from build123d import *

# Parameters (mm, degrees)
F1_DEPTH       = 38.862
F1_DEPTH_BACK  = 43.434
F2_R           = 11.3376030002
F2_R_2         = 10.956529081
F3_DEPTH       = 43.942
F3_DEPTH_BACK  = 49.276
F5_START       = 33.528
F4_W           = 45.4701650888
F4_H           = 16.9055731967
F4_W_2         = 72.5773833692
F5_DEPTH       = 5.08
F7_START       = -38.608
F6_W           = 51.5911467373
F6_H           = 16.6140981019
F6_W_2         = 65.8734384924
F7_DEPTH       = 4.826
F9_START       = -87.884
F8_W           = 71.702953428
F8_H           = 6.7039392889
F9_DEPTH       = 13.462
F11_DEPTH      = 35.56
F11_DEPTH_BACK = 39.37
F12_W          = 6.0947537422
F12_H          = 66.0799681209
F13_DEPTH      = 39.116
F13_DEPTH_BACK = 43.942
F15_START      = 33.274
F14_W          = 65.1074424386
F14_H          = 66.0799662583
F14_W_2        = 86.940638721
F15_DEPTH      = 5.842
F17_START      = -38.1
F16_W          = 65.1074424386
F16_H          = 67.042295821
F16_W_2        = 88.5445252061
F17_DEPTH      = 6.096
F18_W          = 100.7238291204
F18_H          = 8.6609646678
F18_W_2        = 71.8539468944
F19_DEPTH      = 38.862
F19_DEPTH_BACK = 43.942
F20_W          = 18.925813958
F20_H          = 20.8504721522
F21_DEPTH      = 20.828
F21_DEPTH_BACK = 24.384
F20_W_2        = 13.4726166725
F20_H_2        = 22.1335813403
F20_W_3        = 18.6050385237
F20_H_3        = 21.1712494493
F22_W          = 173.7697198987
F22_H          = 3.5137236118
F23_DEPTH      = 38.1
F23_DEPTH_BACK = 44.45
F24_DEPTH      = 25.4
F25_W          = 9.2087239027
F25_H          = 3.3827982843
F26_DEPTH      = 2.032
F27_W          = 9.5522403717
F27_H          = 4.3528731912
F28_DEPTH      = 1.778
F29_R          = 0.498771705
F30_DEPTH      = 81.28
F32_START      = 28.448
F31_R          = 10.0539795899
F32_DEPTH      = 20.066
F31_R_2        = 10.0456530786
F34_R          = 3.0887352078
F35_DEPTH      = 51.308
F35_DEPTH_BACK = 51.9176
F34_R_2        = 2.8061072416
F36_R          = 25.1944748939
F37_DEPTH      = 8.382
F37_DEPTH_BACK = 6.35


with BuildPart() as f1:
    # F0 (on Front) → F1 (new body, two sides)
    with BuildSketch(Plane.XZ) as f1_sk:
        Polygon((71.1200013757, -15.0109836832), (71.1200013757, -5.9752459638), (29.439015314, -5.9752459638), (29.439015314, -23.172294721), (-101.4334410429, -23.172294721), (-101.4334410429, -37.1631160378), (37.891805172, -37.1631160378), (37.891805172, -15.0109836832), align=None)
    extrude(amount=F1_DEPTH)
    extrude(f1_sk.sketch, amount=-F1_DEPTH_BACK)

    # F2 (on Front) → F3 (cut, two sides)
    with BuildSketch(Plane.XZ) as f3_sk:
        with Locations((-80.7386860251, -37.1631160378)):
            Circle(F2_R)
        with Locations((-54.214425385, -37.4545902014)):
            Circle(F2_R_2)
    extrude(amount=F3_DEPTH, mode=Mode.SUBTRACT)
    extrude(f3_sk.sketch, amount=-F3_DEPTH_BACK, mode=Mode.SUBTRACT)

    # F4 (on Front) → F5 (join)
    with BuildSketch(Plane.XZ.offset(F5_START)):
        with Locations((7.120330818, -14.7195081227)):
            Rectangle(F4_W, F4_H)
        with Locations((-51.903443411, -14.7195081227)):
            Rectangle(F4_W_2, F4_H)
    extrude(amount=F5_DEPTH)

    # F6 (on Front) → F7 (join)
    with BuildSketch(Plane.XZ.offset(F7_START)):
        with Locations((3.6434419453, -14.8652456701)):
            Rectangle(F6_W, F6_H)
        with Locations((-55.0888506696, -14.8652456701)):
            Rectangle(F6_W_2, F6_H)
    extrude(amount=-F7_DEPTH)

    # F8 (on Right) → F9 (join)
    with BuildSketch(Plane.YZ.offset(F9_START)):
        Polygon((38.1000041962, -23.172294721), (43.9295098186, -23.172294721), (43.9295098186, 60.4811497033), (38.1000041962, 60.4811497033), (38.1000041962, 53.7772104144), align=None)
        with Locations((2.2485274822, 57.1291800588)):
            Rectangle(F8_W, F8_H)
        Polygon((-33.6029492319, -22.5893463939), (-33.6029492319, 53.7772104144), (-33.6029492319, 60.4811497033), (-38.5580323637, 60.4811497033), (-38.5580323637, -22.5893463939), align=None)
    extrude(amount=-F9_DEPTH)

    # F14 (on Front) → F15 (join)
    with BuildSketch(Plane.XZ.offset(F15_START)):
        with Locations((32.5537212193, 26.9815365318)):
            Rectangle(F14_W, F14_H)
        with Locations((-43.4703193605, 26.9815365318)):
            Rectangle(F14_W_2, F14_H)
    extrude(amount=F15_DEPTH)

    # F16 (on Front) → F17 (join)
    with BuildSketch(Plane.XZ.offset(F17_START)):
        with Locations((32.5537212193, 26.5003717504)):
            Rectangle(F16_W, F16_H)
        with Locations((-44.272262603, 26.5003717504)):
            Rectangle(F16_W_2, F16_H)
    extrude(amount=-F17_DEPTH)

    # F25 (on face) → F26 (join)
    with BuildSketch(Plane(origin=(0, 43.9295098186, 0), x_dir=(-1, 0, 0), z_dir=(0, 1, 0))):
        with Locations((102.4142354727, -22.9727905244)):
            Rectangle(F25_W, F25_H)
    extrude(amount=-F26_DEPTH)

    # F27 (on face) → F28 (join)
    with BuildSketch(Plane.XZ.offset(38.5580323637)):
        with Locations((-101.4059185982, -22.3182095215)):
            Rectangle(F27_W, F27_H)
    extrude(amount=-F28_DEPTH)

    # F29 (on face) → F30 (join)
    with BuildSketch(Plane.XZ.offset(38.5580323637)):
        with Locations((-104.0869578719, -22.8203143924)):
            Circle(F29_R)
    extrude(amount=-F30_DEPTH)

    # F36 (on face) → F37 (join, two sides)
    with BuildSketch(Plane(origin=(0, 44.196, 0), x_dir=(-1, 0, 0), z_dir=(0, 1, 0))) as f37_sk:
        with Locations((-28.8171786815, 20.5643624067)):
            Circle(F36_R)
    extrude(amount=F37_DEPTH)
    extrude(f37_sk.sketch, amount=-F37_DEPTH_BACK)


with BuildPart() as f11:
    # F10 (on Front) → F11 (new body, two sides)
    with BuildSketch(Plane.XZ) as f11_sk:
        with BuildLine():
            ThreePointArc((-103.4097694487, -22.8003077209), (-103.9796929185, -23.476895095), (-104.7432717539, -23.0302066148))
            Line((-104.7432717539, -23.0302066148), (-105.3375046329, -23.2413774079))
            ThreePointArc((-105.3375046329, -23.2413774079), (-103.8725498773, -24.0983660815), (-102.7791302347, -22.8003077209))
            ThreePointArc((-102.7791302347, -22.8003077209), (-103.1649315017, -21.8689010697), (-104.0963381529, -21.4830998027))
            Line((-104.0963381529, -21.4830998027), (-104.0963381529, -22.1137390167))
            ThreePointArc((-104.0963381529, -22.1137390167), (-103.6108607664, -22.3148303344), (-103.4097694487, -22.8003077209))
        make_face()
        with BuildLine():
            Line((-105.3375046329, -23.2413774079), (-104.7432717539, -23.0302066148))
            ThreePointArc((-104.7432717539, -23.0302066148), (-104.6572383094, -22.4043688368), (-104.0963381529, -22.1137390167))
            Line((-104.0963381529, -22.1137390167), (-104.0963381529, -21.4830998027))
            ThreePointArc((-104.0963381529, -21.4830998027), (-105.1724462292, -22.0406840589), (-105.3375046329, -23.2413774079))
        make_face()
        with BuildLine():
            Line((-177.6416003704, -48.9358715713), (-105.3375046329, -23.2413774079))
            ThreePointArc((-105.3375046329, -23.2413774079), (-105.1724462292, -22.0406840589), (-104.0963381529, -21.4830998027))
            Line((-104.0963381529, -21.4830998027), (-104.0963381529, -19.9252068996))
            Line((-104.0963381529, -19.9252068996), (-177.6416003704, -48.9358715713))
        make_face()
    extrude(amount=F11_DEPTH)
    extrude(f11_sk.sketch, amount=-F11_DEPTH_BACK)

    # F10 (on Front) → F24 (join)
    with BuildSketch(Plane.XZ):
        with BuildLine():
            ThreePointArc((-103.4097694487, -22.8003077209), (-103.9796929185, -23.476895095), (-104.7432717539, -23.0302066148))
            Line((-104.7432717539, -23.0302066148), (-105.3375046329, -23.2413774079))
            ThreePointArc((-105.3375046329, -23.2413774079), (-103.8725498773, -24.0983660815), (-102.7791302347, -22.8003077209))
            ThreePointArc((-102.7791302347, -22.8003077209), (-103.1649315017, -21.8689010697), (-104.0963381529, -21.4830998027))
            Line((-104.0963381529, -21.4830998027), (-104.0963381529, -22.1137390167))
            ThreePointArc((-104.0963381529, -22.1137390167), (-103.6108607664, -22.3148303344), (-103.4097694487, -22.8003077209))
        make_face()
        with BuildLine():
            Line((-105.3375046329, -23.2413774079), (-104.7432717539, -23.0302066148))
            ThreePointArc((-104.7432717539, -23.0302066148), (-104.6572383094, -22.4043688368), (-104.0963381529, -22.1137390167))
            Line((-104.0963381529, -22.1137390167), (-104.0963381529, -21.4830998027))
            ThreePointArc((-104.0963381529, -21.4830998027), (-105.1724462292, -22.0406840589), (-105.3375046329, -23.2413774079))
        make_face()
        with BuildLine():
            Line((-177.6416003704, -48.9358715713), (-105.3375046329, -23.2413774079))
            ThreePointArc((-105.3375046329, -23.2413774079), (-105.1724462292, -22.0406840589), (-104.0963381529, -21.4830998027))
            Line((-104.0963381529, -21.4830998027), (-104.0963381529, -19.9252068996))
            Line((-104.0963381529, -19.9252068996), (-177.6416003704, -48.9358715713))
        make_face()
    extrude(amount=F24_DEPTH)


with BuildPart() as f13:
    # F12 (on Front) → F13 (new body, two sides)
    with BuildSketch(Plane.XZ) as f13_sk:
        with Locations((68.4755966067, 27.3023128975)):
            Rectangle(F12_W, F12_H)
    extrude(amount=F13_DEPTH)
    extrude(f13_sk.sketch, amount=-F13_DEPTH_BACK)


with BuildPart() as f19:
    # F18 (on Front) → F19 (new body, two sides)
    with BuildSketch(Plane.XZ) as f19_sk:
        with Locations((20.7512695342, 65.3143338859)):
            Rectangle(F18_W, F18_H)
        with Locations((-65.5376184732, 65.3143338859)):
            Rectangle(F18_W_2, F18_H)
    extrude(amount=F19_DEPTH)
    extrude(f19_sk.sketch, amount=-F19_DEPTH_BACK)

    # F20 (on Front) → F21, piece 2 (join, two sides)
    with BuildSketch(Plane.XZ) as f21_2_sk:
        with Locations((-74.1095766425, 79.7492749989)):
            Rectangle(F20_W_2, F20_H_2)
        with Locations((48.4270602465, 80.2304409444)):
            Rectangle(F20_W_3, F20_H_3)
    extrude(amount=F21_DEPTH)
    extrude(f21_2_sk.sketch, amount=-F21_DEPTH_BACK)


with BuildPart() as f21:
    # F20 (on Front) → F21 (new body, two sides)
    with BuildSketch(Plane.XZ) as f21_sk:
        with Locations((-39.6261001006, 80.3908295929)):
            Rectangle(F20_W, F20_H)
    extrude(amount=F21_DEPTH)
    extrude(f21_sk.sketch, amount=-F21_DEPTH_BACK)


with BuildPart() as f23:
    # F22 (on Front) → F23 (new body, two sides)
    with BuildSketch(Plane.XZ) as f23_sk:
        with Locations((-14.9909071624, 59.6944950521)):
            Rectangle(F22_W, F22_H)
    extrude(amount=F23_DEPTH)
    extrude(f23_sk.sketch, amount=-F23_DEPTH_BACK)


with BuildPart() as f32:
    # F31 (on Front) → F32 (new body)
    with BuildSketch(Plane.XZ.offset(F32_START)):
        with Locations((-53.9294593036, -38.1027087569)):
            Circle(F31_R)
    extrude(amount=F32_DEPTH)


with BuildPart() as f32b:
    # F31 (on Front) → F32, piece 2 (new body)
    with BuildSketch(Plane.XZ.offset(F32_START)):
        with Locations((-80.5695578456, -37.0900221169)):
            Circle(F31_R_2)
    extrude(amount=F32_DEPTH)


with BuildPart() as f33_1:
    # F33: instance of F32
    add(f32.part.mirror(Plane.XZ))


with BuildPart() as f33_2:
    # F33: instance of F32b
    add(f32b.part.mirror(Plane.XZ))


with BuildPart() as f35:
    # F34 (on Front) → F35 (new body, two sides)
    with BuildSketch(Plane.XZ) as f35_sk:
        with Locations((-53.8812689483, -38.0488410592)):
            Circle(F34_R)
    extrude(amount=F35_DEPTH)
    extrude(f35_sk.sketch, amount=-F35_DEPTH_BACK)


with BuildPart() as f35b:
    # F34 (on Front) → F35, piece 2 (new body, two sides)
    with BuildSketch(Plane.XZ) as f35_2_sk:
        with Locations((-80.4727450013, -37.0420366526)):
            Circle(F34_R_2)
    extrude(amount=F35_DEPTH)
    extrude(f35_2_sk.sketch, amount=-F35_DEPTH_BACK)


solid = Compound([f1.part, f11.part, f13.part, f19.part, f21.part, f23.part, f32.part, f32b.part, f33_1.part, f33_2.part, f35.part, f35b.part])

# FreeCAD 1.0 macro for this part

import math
import FreeCAD as App
import Part
import Sketcher
Q = App.Units.Quantity


def add_polygon(sketch, points):
    """Adds a closed chain of lines whose ends are joined by coincident constraints."""
    first, n = sketch.GeometryCount, len(points)
    for a, b in zip(points, points[1:] + points[:1]):
        sketch.addGeometry(Part.LineSegment(App.Vector(*a, 0), App.Vector(*b, 0)), False)
    for i in range(n):
        sketch.addConstraint(Sketcher.Constraint("Coincident", first + i, 2, first + (i + 1) % n, 1))

doc = App.newDocument("Part")
params = doc.addObject("Spreadsheet::Sheet", "Params")
for row, (alias, value) in enumerate([
    ("pad1_length", "1.53 in"),
    ("pad1_length2", "1.71 in"),
    ("pad2_length", "0.2 in"),
    ("pad3_length", "0.19 in"),
    ("pad4_length", "0.53 in"),
    ("pad5_length", "0.23 in"),
    ("pad6_length", "0.24 in"),
    ("pad7_length", "0.08 in"),
    ("pad8_length", "0.07 in"),
    ("pad9_length", "3.2 in"),
    ("pad10_length", "0.33 in"),
    ("pad10_length2", "0.25 in"),
    ("pad11_length", "1.4 in"),
    ("pad11_length2", "1.55 in"),
    ("pad12_length", "1 in"),
    ("pad13_length", "1.54 in"),
    ("pad13_length2", "1.73 in"),
    ("pad14_length", "1.53 in"),
    ("pad14_length2", "1.73 in"),
    ("pad15_length", "0.82 in"),
    ("pad15_length2", "0.96 in"),
    ("pad16_length", "0.82 in"),
    ("pad16_length2", "0.96 in"),
    ("pad17_length", "1.5 in"),
    ("pad17_length2", "1.75 in"),
    ("pad18_length", "0.79 in"),
    ("pad19_length", "0.79 in"),
    ("pad20_length", "2.02 in"),
    ("pad20_length2", "2.044 in"),
    ("pad21_length", "2.02 in"),
    ("pad21_length2", "2.044 in"),
], start=1):
    params.set(f"A{row}", alias)
    params.set(f"B{row}", "=" + value)
    params.setAlias(f"B{row}", alias)

body = doc.addObject("PartDesign::Body", "Body")

# Sketch on XZ plane
sketch1 = doc.addObject("Sketcher::SketchObject", "Sketch")
body.addObject(sketch1)
sketch1.AttachmentSupport = (doc.XZ_Plane, [""])
sketch1.MapMode = "FlatFace"
add_polygon(sketch1, [(71, -15), (71, -6), (29, -6), (29, -23), (-101, -23), (-101, -37), (38, -37), (38, -15)])  # lines 0-7
sketch1.addConstraint(Sketcher.Constraint("Vertical", 0))
sketch1.addConstraint(Sketcher.Constraint("Horizontal", 1))
sketch1.addConstraint(Sketcher.Constraint("Vertical", 2))
sketch1.addConstraint(Sketcher.Constraint("Horizontal", 3))
sketch1.addConstraint(Sketcher.Constraint("Vertical", 4))
sketch1.addConstraint(Sketcher.Constraint("Horizontal", 5))
sketch1.addConstraint(Sketcher.Constraint("Vertical", 6))
sketch1.addConstraint(Sketcher.Constraint("Horizontal", 7))
sketch1.addConstraint(Sketcher.Constraint("DistanceX", -1, 1, 0, 2, Q("2.8000001 in")))
sketch1.addConstraint(Sketcher.Constraint("DistanceY", 2, 2, 2, 1, 17.197049))
sketch1.addConstraint(Sketcher.Constraint("DistanceY", 4, 2, 4, 1, 13.990821))
sketch1.addConstraint(Sketcher.Constraint("DistanceX", 1, 2, 1, 1, 41.680986))
sketch1.addConstraint(Sketcher.Constraint("DistanceX", 3, 2, 3, 1, 130.872456))
sketch1.addConstraint(Sketcher.Constraint("DistanceX", 5, 1, 5, 2, 139.325246))
sketch1.addConstraint(Sketcher.Constraint("DistanceY", 0, 1, 0, 2, 9.035738))
sketch1.addConstraint(Sketcher.Constraint("DistanceY", 0, 2, -1, 1, 5.975246))
pad1 = doc.addObject("PartDesign::Pad", "Pad")
body.addObject(pad1)
pad1.Profile = sketch1
pad1.Type = "TwoLengths"
pad1.setExpression("Length", "Params.pad1_length")
pad1.setExpression("Length2", "Params.pad1_length2")

# Sketch on XZ plane
sketch2 = doc.addObject("Sketcher::SketchObject", "Sketch001")
body.addObject(sketch2)
sketch2.AttachmentSupport = (doc.XZ_Plane, [""])
sketch2.MapMode = "FlatFace"
sketch2.addGeometry(Part.Circle(App.Vector(-81, -37, 0), App.Vector(0, 0, 1), 11), False)
sketch2.addGeometry(Part.Circle(App.Vector(-54, -37, 0), App.Vector(0, 0, 1), 11), False)
sketch2.addConstraint(Sketcher.Constraint("Diameter", 1, 21.913058))
sketch2.addConstraint(Sketcher.Constraint("Diameter", 0, 22.675206))
sketch2.addConstraint(Sketcher.Constraint("DistanceY", 1, 3, -1, 1, 37.45459))
sketch2.addConstraint(Sketcher.Constraint("DistanceX", 0, 3, 1, 3, 26.524261))
sketch2.addConstraint(Sketcher.Constraint("DistanceX", 0, 3, -1, 1, 80.738686))
sketch2.addConstraint(Sketcher.Constraint("DistanceY", 0, 3, -1, 1, 37.163116))
pocket1 = doc.addObject("PartDesign::Pocket", "Pocket")
body.addObject(pocket1)
pocket1.Profile = sketch2
pocket1.Type = "ThroughAll"
pocket1.Midplane = True

# Sketch on XZ plane
sketch3 = doc.addObject("Sketcher::SketchObject", "Sketch002")
body.addObject(sketch3)
sketch3.AttachmentSupport = (doc.XZ_Plane, [""])
sketch3.MapMode = "FlatFace"
sketch3.AttachmentOffset = App.Placement(App.Vector(0, 0, 1.32 * 25.4), App.Rotation())
add_polygon(sketch3, [(30, -23), (30, -6), (-88, -6), (-88, -23)])  # lines 0-3
sketch3.addConstraint(Sketcher.Constraint("Vertical", 0))
sketch3.addConstraint(Sketcher.Constraint("Horizontal", 1))
sketch3.addConstraint(Sketcher.Constraint("Vertical", 2))
sketch3.addConstraint(Sketcher.Constraint("Horizontal", 3))
sketch3.addConstraint(Sketcher.Constraint("DistanceX", 1, 2, 1, 1, 118.047548))
sketch3.addConstraint(Sketcher.Constraint("DistanceY", 0, 1, 0, 2, 16.905573))
sketch3.addConstraint(Sketcher.Constraint("DistanceY", 0, 2, -1, 1, 6.266722))
sketch3.addConstraint(Sketcher.Constraint("DistanceX", -1, 1, 0, 2, 29.855413))
pad2 = doc.addObject("PartDesign::Pad", "Pad001")
body.addObject(pad2)
pad2.Profile = sketch3
pad2.setExpression("Length", "Params.pad2_length")

# Sketch on XZ plane
sketch4 = doc.addObject("Sketcher::SketchObject", "Sketch003")
body.addObject(sketch4)
sketch4.AttachmentSupport = (doc.XZ_Plane, [""])
sketch4.MapMode = "FlatFace"
sketch4.AttachmentOffset = App.Placement(App.Vector(0, 0, -1.52 * 25.4), App.Rotation())
add_polygon(sketch4, [(29, -23), (29, -7), (-88, -7), (-88, -23)])  # lines 0-3
sketch4.addConstraint(Sketcher.Constraint("Vertical", 0))
sketch4.addConstraint(Sketcher.Constraint("Horizontal", 1))
sketch4.addConstraint(Sketcher.Constraint("Vertical", 2))
sketch4.addConstraint(Sketcher.Constraint("Horizontal", 3))
sketch4.addConstraint(Sketcher.Constraint("DistanceY", 0, 1, 0, 2, 16.614098))
sketch4.addConstraint(Sketcher.Constraint("DistanceX", 1, 2, 1, 1, 117.464585))
sketch4.addConstraint(Sketcher.Constraint("DistanceX", 1, 2, -1, 1, 88.02557))
sketch4.addConstraint(Sketcher.Constraint("DistanceY", 0, 2, -1, 1, 6.558197))
pad3 = doc.addObject("PartDesign::Pad", "Pad002")
body.addObject(pad3)
pad3.Profile = sketch4
pad3.setExpression("Length", "Params.pad3_length")
pad3.Reversed = True

# Sketch on YZ plane
sketch5 = doc.addObject("Sketcher::SketchObject", "Sketch004")
body.addObject(sketch5)
sketch5.AttachmentSupport = (doc.YZ_Plane, [""])
sketch5.MapMode = "FlatFace"
sketch5.AttachmentOffset = App.Placement(App.Vector(0, 0, -3.46 * 25.4), App.Rotation())
add_polygon(sketch5, [(38.1, -23.2), (43.9, -23.2), (43.9, 60.5), (-38.6, 60.5), (-38.6, -22.6), (-33.6, -22.6), (-33.6, 53.8), (38.1, 53.8)])  # lines 0-7
sketch5.addConstraint(Sketcher.Constraint("Horizontal", 0))
sketch5.addConstraint(Sketcher.Constraint("Vertical", 1))
sketch5.addConstraint(Sketcher.Constraint("Horizontal", 2))
sketch5.addConstraint(Sketcher.Constraint("Vertical", 3))
sketch5.addConstraint(Sketcher.Constraint("Horizontal", 4))
sketch5.addConstraint(Sketcher.Constraint("Vertical", 5))
sketch5.addConstraint(Sketcher.Constraint("Horizontal", 6))
sketch5.addConstraint(Sketcher.Constraint("Vertical", 7))
sketch5.addConstraint(Sketcher.Constraint("DistanceX", -1, 1, 6, 2, Q("1.5000002 in")))
sketch5.addConstraint(Sketcher.Constraint("DistanceX", 0, 1, 0, 2, 5.829506))
sketch5.addConstraint(Sketcher.Constraint("DistanceX", 2, 2, 2, 1, 82.487542))
sketch5.addConstraint(Sketcher.Constraint("DistanceX", 4, 1, 4, 2, 4.955083))
sketch5.addConstraint(Sketcher.Constraint("DistanceY", 1, 1, 1, 2, 83.653444))
sketch5.addConstraint(Sketcher.Constraint("DistanceY", 3, 2, 3, 1, 83.070496))
sketch5.addConstraint(Sketcher.Constraint("DistanceY", 5, 1, 5, 2, 76.366557))
sketch5.addConstraint(Sketcher.Constraint("DistanceY", -1, 1, 1, 2, 60.48115))
pad4 = doc.addObject("PartDesign::Pad", "Pad003")
body.addObject(pad4)
pad4.Profile = sketch5
pad4.setExpression("Length", "Params.pad4_length")
pad4.Reversed = True

# Sketch on XZ plane
sketch6 = doc.addObject("Sketcher::SketchObject", "Sketch005")
body.addObject(sketch6)
sketch6.AttachmentSupport = (doc.XZ_Plane, [""])
sketch6.MapMode = "FlatFace"
sketch6.AttachmentOffset = App.Placement(App.Vector(0, 0, 1.31 * 25.4), App.Rotation())
add_polygon(sketch6, [(65, -6), (65, 60), (-87, 60), (-87, -6)])  # lines 0-3
sketch6.addConstraint(Sketcher.Constraint("Vertical", 0))
sketch6.addConstraint(Sketcher.Constraint("Horizontal", 1))
sketch6.addConstraint(Sketcher.Constraint("Vertical", 2))
sketch6.addConstraint(Sketcher.Constraint("Horizontal", 3))
sketch6.addConstraint(Sketcher.Constraint("DistanceX", 1, 2, 1, 1, 152.048081))
sketch6.addConstraint(Sketcher.Constraint("DistanceY", 0, 1, 0, 2, 66.079966))
sketch6.addConstraint(Sketcher.Constraint("DistanceY", -1, 1, 0, 2, 60.02152))
sketch6.addConstraint(Sketcher.Constraint("DistanceX", 1, 2, -1, 1, 86.940639))
pad5 = doc.addObject("PartDesign::Pad", "Pad004")
body.addObject(pad5)
pad5.Profile = sketch6
pad5.setExpression("Length", "Params.pad5_length")

# Sketch on XZ plane
sketch7 = doc.addObject("Sketcher::SketchObject", "Sketch006")
body.addObject(sketch7)
sketch7.AttachmentSupport = (doc.XZ_Plane, [""])
sketch7.MapMode = "FlatFace"
sketch7.AttachmentOffset = App.Placement(App.Vector(0, 0, -1.5 * 25.4), App.Rotation())
add_polygon(sketch7, [(65, -7), (65, 60), (-89, 60), (-89, -7)])  # lines 0-3
sketch7.addConstraint(Sketcher.Constraint("Vertical", 0))
sketch7.addConstraint(Sketcher.Constraint("Horizontal", 1))
sketch7.addConstraint(Sketcher.Constraint("Vertical", 2))
sketch7.addConstraint(Sketcher.Constraint("Horizontal", 3))
sketch7.addConstraint(Sketcher.Constraint("DistanceX", 1, 2, 1, 1, 153.651968))
sketch7.addConstraint(Sketcher.Constraint("DistanceY", 0, 1, 0, 2, 67.042296))
sketch7.addConstraint(Sketcher.Constraint("DistanceY", -1, 1, 0, 2, 60.02152))
sketch7.addConstraint(Sketcher.Constraint("DistanceX", -1, 1, 0, 2, 65.107442))
pad6 = doc.addObject("PartDesign::Pad", "Pad005")
body.addObject(pad6)
pad6.Profile = sketch7
pad6.setExpression("Length", "Params.pad6_length")
pad6.Reversed = True

# Sketch on XZ plane
sketch8 = doc.addObject("Sketcher::SketchObject", "Sketch007")
body.addObject(sketch8)
sketch8.AttachmentSupport = (doc.XZ_Plane, [""])
sketch8.MapMode = "FlatFace"
sketch8.AttachmentOffset = App.Placement(App.Vector(0, 0, -43.92951), App.Rotation())
add_polygon(sketch8, [(-97.8, -21.3), (-97.8, -24.7), (-107, -24.7), (-107, -21.3)])  # lines 0-3
sketch8.addConstraint(Sketcher.Constraint("Vertical", 0))
sketch8.addConstraint(Sketcher.Constraint("Horizontal", 1))
sketch8.addConstraint(Sketcher.Constraint("Vertical", 2))
sketch8.addConstraint(Sketcher.Constraint("Horizontal", 3))
sketch8.addConstraint(Sketcher.Constraint("DistanceY", 0, 2, 0, 1, 3.382798))
sketch8.addConstraint(Sketcher.Constraint("DistanceX", 1, 2, 1, 1, 9.208724))
sketch8.addConstraint(Sketcher.Constraint("DistanceY", 0, 2, -1, 1, 24.66419))
sketch8.addConstraint(Sketcher.Constraint("DistanceX", 0, 2, -1, 1, 97.809874))
pad7 = doc.addObject("PartDesign::Pad", "Pad006")
body.addObject(pad7)
pad7.Profile = sketch8
pad7.setExpression("Length", "Params.pad7_length")

# Sketch on XZ plane
sketch9 = doc.addObject("Sketcher::SketchObject", "Sketch008")
body.addObject(sketch9)
sketch9.AttachmentSupport = (doc.XZ_Plane, [""])
sketch9.MapMode = "FlatFace"
sketch9.AttachmentOffset = App.Placement(App.Vector(0, 0, 38.558032), App.Rotation())
add_polygon(sketch9, [(-106.2, -20.1), (-106.2, -24.5), (-96.6, -24.5), (-96.6, -20.1)])  # lines 0-3
sketch9.addConstraint(Sketcher.Constraint("Vertical", 0))
sketch9.addConstraint(Sketcher.Constraint("Horizontal", 1))
sketch9.addConstraint(Sketcher.Constraint("Vertical", 2))
sketch9.addConstraint(Sketcher.Constraint("Horizontal", 3))
sketch9.addConstraint(Sketcher.Constraint("DistanceX", 1, 1, 1, 2, 9.55224))
sketch9.addConstraint(Sketcher.Constraint("DistanceX", 1, 2, -1, 1, 96.629798))
sketch9.addConstraint(Sketcher.Constraint("DistanceY", 0, 2, 0, 1, 4.352873))
sketch9.addConstraint(Sketcher.Constraint("DistanceY", 0, 2, -1, 1, 24.494646))
pad8 = doc.addObject("PartDesign::Pad", "Pad007")
body.addObject(pad8)
pad8.Profile = sketch9
pad8.setExpression("Length", "Params.pad8_length")
pad8.Reversed = True

# Sketch on XZ plane
sketch10 = doc.addObject("Sketcher::SketchObject", "Sketch009")
body.addObject(sketch10)
sketch10.AttachmentSupport = (doc.XZ_Plane, [""])
sketch10.MapMode = "FlatFace"
sketch10.AttachmentOffset = App.Placement(App.Vector(0, 0, 38.558032), App.Rotation())
sketch10.addGeometry(Part.Circle(App.Vector(-104.09, -22.82, 0), App.Vector(0, 0, 1), 0.5), False)
sketch10.addConstraint(Sketcher.Constraint("Diameter", 0, 0.997543))
sketch10.addConstraint(Sketcher.Constraint("DistanceX", 0, 3, -1, 1, 104.086958))
sketch10.addConstraint(Sketcher.Constraint("DistanceY", 0, 3, -1, 1, 22.820314))
pad9 = doc.addObject("PartDesign::Pad", "Pad008")
body.addObject(pad9)
pad9.Profile = sketch10
pad9.setExpression("Length", "Params.pad9_length")
pad9.Reversed = True

# Sketch on XZ plane
sketch11 = doc.addObject("Sketcher::SketchObject", "Sketch010")
body.addObject(sketch11)
sketch11.AttachmentSupport = (doc.XZ_Plane, [""])
sketch11.MapMode = "FlatFace"
sketch11.AttachmentOffset = App.Placement(App.Vector(0, 0, -1.74 * 25.4), App.Rotation())
sketch11.addGeometry(Part.Circle(App.Vector(29, 21, 0), App.Vector(0, 0, 1), 25), False)
sketch11.addConstraint(Sketcher.Constraint("Diameter", 0, 50.38895))
sketch11.addConstraint(Sketcher.Constraint("DistanceX", -1, 1, 0, 3, 28.817179))
sketch11.addConstraint(Sketcher.Constraint("DistanceY", -1, 1, 0, 3, 20.564362))
pad10 = doc.addObject("PartDesign::Pad", "Pad009")
body.addObject(pad10)
pad10.Profile = sketch11
pad10.Type = "TwoLengths"
pad10.setExpression("Length", "Params.pad10_length")
pad10.setExpression("Length2", "Params.pad10_length2")
pad10.Reversed = True
body2 = doc.addObject("PartDesign::Body", "Body001")

# Sketch on XZ plane
sketch12 = doc.addObject("Sketcher::SketchObject", "Sketch011")
body2.addObject(sketch12)
sketch12.AttachmentSupport = (doc.getObject("XZ_Plane001"), [""])
sketch12.MapMode = "FlatFace"
sketch12.addGeometry(Part.ArcOfCircle(Part.Circle(App.Vector(-104.1, -22.8, 0), App.Vector(0, 0, 1), 1.3), math.radians(-160), math.radians(0)), False)
sketch12.addGeometry(Part.ArcOfCircle(Part.Circle(App.Vector(-104.1, -22.8, 0), App.Vector(0, 0, 1), 1.3), math.radians(0), math.radians(90)), False)
sketch12.addGeometry(Part.LineSegment(App.Vector(-104.1, -21.5, 0), App.Vector(-104.1, -19.9, 0)), False)
sketch12.addGeometry(Part.LineSegment(App.Vector(-104.1, -19.9, 0), App.Vector(-177.6, -48.9, 0)), False)
sketch12.addGeometry(Part.LineSegment(App.Vector(-177.6, -48.9, 0), App.Vector(-105.3, -23.2, 0)), False)
sketch12.addGeometry(Part.ArcOfCircle(Part.Circle(App.Vector(-104.1, -22.8, 0), App.Vector(0, 0, 1), 0.7), math.radians(-160), math.radians(0)), False)
sketch12.addGeometry(Part.ArcOfCircle(Part.Circle(App.Vector(-104.1, -22.8, 0), App.Vector(0, 0, 1), 0.7), math.radians(90), math.radians(200)), False)
sketch12.addGeometry(Part.ArcOfCircle(Part.Circle(App.Vector(-104.1, -22.8, 0), App.Vector(0, 0, 1), 0.7), math.radians(0), math.radians(90)), False)
sketch12.addConstraint(Sketcher.Constraint("Tangent", 0, 2, 1, 1))
sketch12.addConstraint(Sketcher.Constraint("Coincident", 1, 2, 2, 1))
sketch12.addConstraint(Sketcher.Constraint("Coincident", 2, 2, 3, 1))
sketch12.addConstraint(Sketcher.Constraint("Coincident", 3, 2, 4, 1))
sketch12.addConstraint(Sketcher.Constraint("Coincident", 4, 2, 0, 1))
sketch12.addConstraint(Sketcher.Constraint("Tangent", 5, 1, 6, 2))
sketch12.addConstraint(Sketcher.Constraint("Tangent", 6, 1, 7, 2))
sketch12.addConstraint(Sketcher.Constraint("Tangent", 7, 1, 5, 2))
sketch12.addConstraint(Sketcher.Constraint("Vertical", 2))
sketch12.addConstraint(Sketcher.Constraint("Coincident", 5, 3, 0, 3))
sketch12.addConstraint(Sketcher.Constraint("Equal", 0, 1))
sketch12.addConstraint(Sketcher.Constraint("Horizontal", 7, 3, 0, 2))
sketch12.addConstraint(Sketcher.Constraint("Horizontal", 0, 2, 7, 1))
sketch12.addConstraint(Sketcher.Constraint("Vertical", 7, 3, 1, 2))
sketch12.addConstraint(Sketcher.Constraint("Vertical", 2, 2, 6, 1))
sketch12.addConstraint(Sketcher.Constraint("Radius", 5, 0.686569))
sketch12.addConstraint(Sketcher.Constraint("Radius", 0, 1.317208))
sketch12.addConstraint(Sketcher.Constraint("DistanceY", 1, 2, -1, 1, 21.4831))
sketch12.addConstraint(Sketcher.Constraint("DistanceX", 3, 2, -1, 1, 177.6416))
sketch12.addConstraint(Sketcher.Constraint("DistanceY", 0, 3, 2, 2, 2.875101))
sketch12.addConstraint(Sketcher.Constraint("DistanceY", 5, 1, 0, 3, 0.229899))
sketch12.addConstraint(Sketcher.Constraint("DistanceX", 0, 3, -1, 1, 104.096338))
sketch12.addConstraint(Sketcher.Constraint("DistanceY", 3, 2, -1, 1, 48.935872))
sketch12.addConstraint(Sketcher.Constraint("DistanceY", 4, 2, 0, 3, 0.44107))
pad11 = doc.addObject("PartDesign::Pad", "Pad010")
body2.addObject(pad11)
pad11.Profile = sketch12
pad11.Type = "TwoLengths"
pad11.setExpression("Length", "Params.pad11_length")
pad11.setExpression("Length2", "Params.pad11_length2")

# Sketch on XZ plane
sketch13 = doc.addObject("Sketcher::SketchObject", "Sketch012")
body2.addObject(sketch13)
sketch13.AttachmentSupport = (doc.getObject("XZ_Plane001"), [""])
sketch13.MapMode = "FlatFace"
sketch13.addGeometry(Part.ArcOfCircle(Part.Circle(App.Vector(-104.1, -22.8, 0), App.Vector(0, 0, 1), 1.3), math.radians(-160), math.radians(0)), False)
sketch13.addGeometry(Part.ArcOfCircle(Part.Circle(App.Vector(-104.1, -22.8, 0), App.Vector(0, 0, 1), 1.3), math.radians(0), math.radians(90)), False)
sketch13.addGeometry(Part.LineSegment(App.Vector(-104.1, -21.5, 0), App.Vector(-104.1, -19.9, 0)), False)
sketch13.addGeometry(Part.LineSegment(App.Vector(-104.1, -19.9, 0), App.Vector(-177.6, -48.9, 0)), False)
sketch13.addGeometry(Part.LineSegment(App.Vector(-177.6, -48.9, 0), App.Vector(-105.3, -23.2, 0)), False)
sketch13.addGeometry(Part.ArcOfCircle(Part.Circle(App.Vector(-104.1, -22.8, 0), App.Vector(0, 0, 1), 0.7), math.radians(-160), math.radians(0)), False)
sketch13.addGeometry(Part.ArcOfCircle(Part.Circle(App.Vector(-104.1, -22.8, 0), App.Vector(0, 0, 1), 0.7), math.radians(90), math.radians(200)), False)
sketch13.addGeometry(Part.ArcOfCircle(Part.Circle(App.Vector(-104.1, -22.8, 0), App.Vector(0, 0, 1), 0.7), math.radians(0), math.radians(90)), False)
sketch13.addConstraint(Sketcher.Constraint("Tangent", 0, 2, 1, 1))
sketch13.addConstraint(Sketcher.Constraint("Coincident", 1, 2, 2, 1))
sketch13.addConstraint(Sketcher.Constraint("Coincident", 2, 2, 3, 1))
sketch13.addConstraint(Sketcher.Constraint("Coincident", 3, 2, 4, 1))
sketch13.addConstraint(Sketcher.Constraint("Coincident", 4, 2, 0, 1))
sketch13.addConstraint(Sketcher.Constraint("Tangent", 5, 1, 6, 2))
sketch13.addConstraint(Sketcher.Constraint("Tangent", 6, 1, 7, 2))
sketch13.addConstraint(Sketcher.Constraint("Tangent", 7, 1, 5, 2))
sketch13.addConstraint(Sketcher.Constraint("Vertical", 2))
sketch13.addConstraint(Sketcher.Constraint("Coincident", 5, 3, 0, 3))
sketch13.addConstraint(Sketcher.Constraint("Equal", 0, 1))
sketch13.addConstraint(Sketcher.Constraint("Horizontal", 7, 3, 0, 2))
sketch13.addConstraint(Sketcher.Constraint("Horizontal", 0, 2, 7, 1))
sketch13.addConstraint(Sketcher.Constraint("Vertical", 7, 3, 1, 2))
sketch13.addConstraint(Sketcher.Constraint("Vertical", 2, 2, 6, 1))
sketch13.addConstraint(Sketcher.Constraint("Radius", 5, 0.686569))
sketch13.addConstraint(Sketcher.Constraint("Radius", 0, 1.317208))
sketch13.addConstraint(Sketcher.Constraint("DistanceY", 1, 2, -1, 1, 21.4831))
sketch13.addConstraint(Sketcher.Constraint("DistanceX", 3, 2, -1, 1, 177.6416))
sketch13.addConstraint(Sketcher.Constraint("DistanceY", 0, 3, 2, 2, 2.875101))
sketch13.addConstraint(Sketcher.Constraint("DistanceY", 5, 1, 0, 3, 0.229899))
sketch13.addConstraint(Sketcher.Constraint("DistanceX", 0, 3, -1, 1, 104.096338))
sketch13.addConstraint(Sketcher.Constraint("DistanceY", 3, 2, -1, 1, 48.935872))
sketch13.addConstraint(Sketcher.Constraint("DistanceY", 4, 2, 0, 3, 0.44107))
pad12 = doc.addObject("PartDesign::Pad", "Pad011")
body2.addObject(pad12)
pad12.Profile = sketch13
pad12.setExpression("Length", "Params.pad12_length")
body3 = doc.addObject("PartDesign::Body", "Body002")

# Sketch on XZ plane
sketch14 = doc.addObject("Sketcher::SketchObject", "Sketch013")
body3.addObject(sketch14)
sketch14.AttachmentSupport = (doc.getObject("XZ_Plane002"), [""])
sketch14.MapMode = "FlatFace"
add_polygon(sketch14, [(65, 60), (65, -6), (72, -6), (72, 60)])  # lines 0-3
sketch14.addConstraint(Sketcher.Constraint("Vertical", 0))
sketch14.addConstraint(Sketcher.Constraint("Horizontal", 1))
sketch14.addConstraint(Sketcher.Constraint("Vertical", 2))
sketch14.addConstraint(Sketcher.Constraint("Horizontal", 3))
sketch14.addConstraint(Sketcher.Constraint("DistanceY", 0, 2, 0, 1, 66.079968))
sketch14.addConstraint(Sketcher.Constraint("DistanceX", 1, 1, 1, 2, 6.094754))
sketch14.addConstraint(Sketcher.Constraint("DistanceX", -1, 1, 0, 2, 65.42822))
sketch14.addConstraint(Sketcher.Constraint("DistanceY", 0, 2, -1, 1, 5.737671))
pad13 = doc.addObject("PartDesign::Pad", "Pad012")
body3.addObject(pad13)
pad13.Profile = sketch14
pad13.Type = "TwoLengths"
pad13.setExpression("Length", "Params.pad13_length")
pad13.setExpression("Length2", "Params.pad13_length2")
body4 = doc.addObject("PartDesign::Body", "Body003")

# Sketch on XZ plane
sketch15 = doc.addObject("Sketcher::SketchObject", "Sketch014")
body4.addObject(sketch15)
sketch15.AttachmentSupport = (doc.getObject("XZ_Plane003"), [""])
sketch15.MapMode = "FlatFace"
add_polygon(sketch15, [(71, 61), (71, 70), (-101, 70), (-101, 61)])  # lines 0-3
sketch15.addConstraint(Sketcher.Constraint("Vertical", 0))
sketch15.addConstraint(Sketcher.Constraint("Horizontal", 1))
sketch15.addConstraint(Sketcher.Constraint("Vertical", 2))
sketch15.addConstraint(Sketcher.Constraint("Horizontal", 3))
sketch15.addConstraint(Sketcher.Constraint("DistanceX", 1, 2, 1, 1, 172.577776))
sketch15.addConstraint(Sketcher.Constraint("DistanceY", 0, 1, 0, 2, 8.660965))
sketch15.addConstraint(Sketcher.Constraint("DistanceX", 1, 2, -1, 1, 101.464592))
sketch15.addConstraint(Sketcher.Constraint("DistanceY", -1, 1, 2, 2, 60.983852))
pad14 = doc.addObject("PartDesign::Pad", "Pad013")
body4.addObject(pad14)
pad14.Profile = sketch15
pad14.Type = "TwoLengths"
pad14.setExpression("Length", "Params.pad14_length")
pad14.setExpression("Length2", "Params.pad14_length2")

# Sketch on XZ plane
sketch16 = doc.addObject("Sketcher::SketchObject", "Sketch015")
body4.addObject(sketch16)
sketch16.AttachmentSupport = (doc.getObject("XZ_Plane003"), [""])
sketch16.MapMode = "FlatFace"
add_polygon(sketch16, [(-81, 91), (-81, 69), (-67, 69), (-67, 91)])  # lines 0-3
add_polygon(sketch16, [(39, 91), (39, 70), (58, 70), (58, 91)])  # lines 4-7
sketch16.addConstraint(Sketcher.Constraint("Vertical", 0))
sketch16.addConstraint(Sketcher.Constraint("Horizontal", 1))
sketch16.addConstraint(Sketcher.Constraint("Vertical", 2))
sketch16.addConstraint(Sketcher.Constraint("Horizontal", 3))
sketch16.addConstraint(Sketcher.Constraint("Vertical", 4))
sketch16.addConstraint(Sketcher.Constraint("Horizontal", 5))
sketch16.addConstraint(Sketcher.Constraint("Vertical", 6))
sketch16.addConstraint(Sketcher.Constraint("Horizontal", 7))
sketch16.addConstraint(Sketcher.Constraint("Horizontal", 3, 2, 6, 2))
sketch16.addConstraint(Sketcher.Constraint("DistanceX", 5, 1, 5, 2, 18.605039))
sketch16.addConstraint(Sketcher.Constraint("DistanceY", 0, 2, 0, 1, 22.133581))
sketch16.addConstraint(Sketcher.Constraint("DistanceY", 4, 2, 4, 1, 21.171249))
sketch16.addConstraint(Sketcher.Constraint("DistanceX", 1, 1, 1, 2, 13.472617))
sketch16.addConstraint(Sketcher.Constraint("DistanceX", 1, 2, -1, 1, 67.373268))
sketch16.addConstraint(Sketcher.Constraint("DistanceX", -1, 1, 4, 2, 39.124541))
sketch16.addConstraint(Sketcher.Constraint("DistanceY", -1, 1, 0, 2, 68.682484))
pad15 = doc.addObject("PartDesign::Pad", "Pad014")
body4.addObject(pad15)
pad15.Profile = sketch16
pad15.Type = "TwoLengths"
pad15.setExpression("Length", "Params.pad15_length")
pad15.setExpression("Length2", "Params.pad15_length2")
body5 = doc.addObject("PartDesign::Body", "Body004")

# Sketch on XZ plane
sketch17 = doc.addObject("Sketcher::SketchObject", "Sketch016")
body5.addObject(sketch17)
sketch17.AttachmentSupport = (doc.getObject("XZ_Plane004"), [""])
sketch17.MapMode = "FlatFace"
add_polygon(sketch17, [(-49, 91), (-49, 70), (-30, 70), (-30, 91)])  # lines 0-3
sketch17.addConstraint(Sketcher.Constraint("Vertical", 0))
sketch17.addConstraint(Sketcher.Constraint("Horizontal", 1))
sketch17.addConstraint(Sketcher.Constraint("Vertical", 2))
sketch17.addConstraint(Sketcher.Constraint("Horizontal", 3))
sketch17.addConstraint(Sketcher.Constraint("DistanceX", 1, 1, 1, 2, 18.925814))
sketch17.addConstraint(Sketcher.Constraint("DistanceY", 0, 2, 0, 1, 20.850472))
sketch17.addConstraint(Sketcher.Constraint("DistanceX", 0, 2, -1, 1, 49.089007))
sketch17.addConstraint(Sketcher.Constraint("DistanceY", -1, 1, 0, 2, 69.965594))
pad16 = doc.addObject("PartDesign::Pad", "Pad015")
body5.addObject(pad16)
pad16.Profile = sketch17
pad16.Type = "TwoLengths"
pad16.setExpression("Length", "Params.pad16_length")
pad16.setExpression("Length2", "Params.pad16_length2")
body6 = doc.addObject("PartDesign::Body", "Body005")

# Sketch on XZ plane
sketch18 = doc.addObject("Sketcher::SketchObject", "Sketch017")
body6.addObject(sketch18)
sketch18.AttachmentSupport = (doc.getObject("XZ_Plane005"), [""])
sketch18.MapMode = "FlatFace"
add_polygon(sketch18, [(-101.9, 61.5), (-101.9, 57.9), (71.9, 57.9), (71.9, 61.5)])  # lines 0-3
sketch18.addConstraint(Sketcher.Constraint("Vertical", 0))
sketch18.addConstraint(Sketcher.Constraint("Horizontal", 1))
sketch18.addConstraint(Sketcher.Constraint("Vertical", 2))
sketch18.addConstraint(Sketcher.Constraint("Horizontal", 3))
sketch18.addConstraint(Sketcher.Constraint("DistanceX", 1, 1, 1, 2, 173.76972))
sketch18.addConstraint(Sketcher.Constraint("DistanceY", 0, 2, 0, 1, 3.513724))
sketch18.addConstraint(Sketcher.Constraint("DistanceX", 0, 2, -1, 1, 101.875767))
sketch18.addConstraint(Sketcher.Constraint("DistanceY", -1, 1, 0, 2, 57.937633))
pad17 = doc.addObject("PartDesign::Pad", "Pad016")
body6.addObject(pad17)
pad17.Profile = sketch18
pad17.Type = "TwoLengths"
pad17.setExpression("Length", "Params.pad17_length")
pad17.setExpression("Length2", "Params.pad17_length2")
body7 = doc.addObject("PartDesign::Body", "Body006")

# Sketch on XZ plane
sketch19 = doc.addObject("Sketcher::SketchObject", "Sketch018")
body7.addObject(sketch19)
sketch19.AttachmentSupport = (doc.getObject("XZ_Plane006"), [""])
sketch19.MapMode = "FlatFace"
sketch19.AttachmentOffset = App.Placement(App.Vector(0, 0, 1.12 * 25.4), App.Rotation())
sketch19.addGeometry(Part.Circle(App.Vector(-54, -38, 0), App.Vector(0, 0, 1), 10), False)
sketch19.addConstraint(Sketcher.Constraint("Diameter", 0, 20.107959))
sketch19.addConstraint(Sketcher.Constraint("DistanceX", 0, 3, -1, 1, 53.929459))
sketch19.addConstraint(Sketcher.Constraint("DistanceY", 0, 3, -1, 1, 38.102709))
pad18 = doc.addObject("PartDesign::Pad", "Pad017")
body7.addObject(pad18)
pad18.Profile = sketch19
pad18.setExpression("Length", "Params.pad18_length")
body8 = doc.addObject("PartDesign::Body", "Body007")

# Sketch on XZ plane
sketch20 = doc.addObject("Sketcher::SketchObject", "Sketch019")
body8.addObject(sketch20)
sketch20.AttachmentSupport = (doc.getObject("XZ_Plane007"), [""])
sketch20.MapMode = "FlatFace"
sketch20.AttachmentOffset = App.Placement(App.Vector(0, 0, 1.12 * 25.4), App.Rotation())
sketch20.addGeometry(Part.Circle(App.Vector(-81, -37, 0), App.Vector(0, 0, 1), 10), False)
sketch20.addConstraint(Sketcher.Constraint("Diameter", 0, 20.091306))
sketch20.addConstraint(Sketcher.Constraint("DistanceX", 0, 3, -1, 1, 80.569558))
sketch20.addConstraint(Sketcher.Constraint("DistanceY", 0, 3, -1, 1, 37.090022))
pad19 = doc.addObject("PartDesign::Pad", "Pad018")
body8.addObject(pad19)
pad19.Profile = sketch20
pad19.setExpression("Length", "Params.pad19_length")
body9 = doc.addObject("PartDesign::Body", "Body008")
doc.recompute()

mirroring = doc.addObject("Part::Mirroring", "Mirroring")
mirroring.Source = body7
mirroring.Base = App.Vector(0, 0, 0)
mirroring.Normal = App.Vector(0, -1, 0)
body9.BaseFeature = mirroring
doc.recompute()
body10 = doc.addObject("PartDesign::Body", "Body009")
doc.recompute()

mirroring2 = doc.addObject("Part::Mirroring", "Mirroring001")
mirroring2.Source = body8
mirroring2.Base = App.Vector(0, 0, 0)
mirroring2.Normal = App.Vector(0, -1, 0)
body10.BaseFeature = mirroring2
doc.recompute()
body11 = doc.addObject("PartDesign::Body", "Body010")

# Sketch on XZ plane
sketch21 = doc.addObject("Sketcher::SketchObject", "Sketch020")
body11.addObject(sketch21)
sketch21.AttachmentSupport = (doc.getObject("XZ_Plane010"), [""])
sketch21.MapMode = "FlatFace"
sketch21.addGeometry(Part.Circle(App.Vector(-53.9, -38, 0), App.Vector(0, 0, 1), 3.1), False)
sketch21.addConstraint(Sketcher.Constraint("Diameter", 0, 6.17747))
sketch21.addConstraint(Sketcher.Constraint("DistanceX", 0, 3, -1, 1, 53.881269))
sketch21.addConstraint(Sketcher.Constraint("DistanceY", 0, 3, -1, 1, 38.048841))
pad20 = doc.addObject("PartDesign::Pad", "Pad019")
body11.addObject(pad20)
pad20.Profile = sketch21
pad20.Type = "TwoLengths"
pad20.setExpression("Length", "Params.pad20_length")
pad20.setExpression("Length2", "Params.pad20_length2")
body12 = doc.addObject("PartDesign::Body", "Body011")

# Sketch on XZ plane
sketch22 = doc.addObject("Sketcher::SketchObject", "Sketch021")
body12.addObject(sketch22)
sketch22.AttachmentSupport = (doc.getObject("XZ_Plane011"), [""])
sketch22.MapMode = "FlatFace"
sketch22.addGeometry(Part.Circle(App.Vector(-80.5, -37, 0), App.Vector(0, 0, 1), 2.8), False)
sketch22.addConstraint(Sketcher.Constraint("Diameter", 0, 5.612214))
sketch22.addConstraint(Sketcher.Constraint("DistanceX", 0, 3, -1, 1, 80.472745))
sketch22.addConstraint(Sketcher.Constraint("DistanceY", 0, 3, -1, 1, 37.042037))
pad21 = doc.addObject("PartDesign::Pad", "Pad020")
body12.addObject(pad21)
pad21.Profile = sketch22
pad21.Type = "TwoLengths"
pad21.setExpression("Length", "Params.pad21_length")
pad21.setExpression("Length2", "Params.pad21_length2")
mirroring.Visibility = False
mirroring2.Visibility = False

doc.recompute()
